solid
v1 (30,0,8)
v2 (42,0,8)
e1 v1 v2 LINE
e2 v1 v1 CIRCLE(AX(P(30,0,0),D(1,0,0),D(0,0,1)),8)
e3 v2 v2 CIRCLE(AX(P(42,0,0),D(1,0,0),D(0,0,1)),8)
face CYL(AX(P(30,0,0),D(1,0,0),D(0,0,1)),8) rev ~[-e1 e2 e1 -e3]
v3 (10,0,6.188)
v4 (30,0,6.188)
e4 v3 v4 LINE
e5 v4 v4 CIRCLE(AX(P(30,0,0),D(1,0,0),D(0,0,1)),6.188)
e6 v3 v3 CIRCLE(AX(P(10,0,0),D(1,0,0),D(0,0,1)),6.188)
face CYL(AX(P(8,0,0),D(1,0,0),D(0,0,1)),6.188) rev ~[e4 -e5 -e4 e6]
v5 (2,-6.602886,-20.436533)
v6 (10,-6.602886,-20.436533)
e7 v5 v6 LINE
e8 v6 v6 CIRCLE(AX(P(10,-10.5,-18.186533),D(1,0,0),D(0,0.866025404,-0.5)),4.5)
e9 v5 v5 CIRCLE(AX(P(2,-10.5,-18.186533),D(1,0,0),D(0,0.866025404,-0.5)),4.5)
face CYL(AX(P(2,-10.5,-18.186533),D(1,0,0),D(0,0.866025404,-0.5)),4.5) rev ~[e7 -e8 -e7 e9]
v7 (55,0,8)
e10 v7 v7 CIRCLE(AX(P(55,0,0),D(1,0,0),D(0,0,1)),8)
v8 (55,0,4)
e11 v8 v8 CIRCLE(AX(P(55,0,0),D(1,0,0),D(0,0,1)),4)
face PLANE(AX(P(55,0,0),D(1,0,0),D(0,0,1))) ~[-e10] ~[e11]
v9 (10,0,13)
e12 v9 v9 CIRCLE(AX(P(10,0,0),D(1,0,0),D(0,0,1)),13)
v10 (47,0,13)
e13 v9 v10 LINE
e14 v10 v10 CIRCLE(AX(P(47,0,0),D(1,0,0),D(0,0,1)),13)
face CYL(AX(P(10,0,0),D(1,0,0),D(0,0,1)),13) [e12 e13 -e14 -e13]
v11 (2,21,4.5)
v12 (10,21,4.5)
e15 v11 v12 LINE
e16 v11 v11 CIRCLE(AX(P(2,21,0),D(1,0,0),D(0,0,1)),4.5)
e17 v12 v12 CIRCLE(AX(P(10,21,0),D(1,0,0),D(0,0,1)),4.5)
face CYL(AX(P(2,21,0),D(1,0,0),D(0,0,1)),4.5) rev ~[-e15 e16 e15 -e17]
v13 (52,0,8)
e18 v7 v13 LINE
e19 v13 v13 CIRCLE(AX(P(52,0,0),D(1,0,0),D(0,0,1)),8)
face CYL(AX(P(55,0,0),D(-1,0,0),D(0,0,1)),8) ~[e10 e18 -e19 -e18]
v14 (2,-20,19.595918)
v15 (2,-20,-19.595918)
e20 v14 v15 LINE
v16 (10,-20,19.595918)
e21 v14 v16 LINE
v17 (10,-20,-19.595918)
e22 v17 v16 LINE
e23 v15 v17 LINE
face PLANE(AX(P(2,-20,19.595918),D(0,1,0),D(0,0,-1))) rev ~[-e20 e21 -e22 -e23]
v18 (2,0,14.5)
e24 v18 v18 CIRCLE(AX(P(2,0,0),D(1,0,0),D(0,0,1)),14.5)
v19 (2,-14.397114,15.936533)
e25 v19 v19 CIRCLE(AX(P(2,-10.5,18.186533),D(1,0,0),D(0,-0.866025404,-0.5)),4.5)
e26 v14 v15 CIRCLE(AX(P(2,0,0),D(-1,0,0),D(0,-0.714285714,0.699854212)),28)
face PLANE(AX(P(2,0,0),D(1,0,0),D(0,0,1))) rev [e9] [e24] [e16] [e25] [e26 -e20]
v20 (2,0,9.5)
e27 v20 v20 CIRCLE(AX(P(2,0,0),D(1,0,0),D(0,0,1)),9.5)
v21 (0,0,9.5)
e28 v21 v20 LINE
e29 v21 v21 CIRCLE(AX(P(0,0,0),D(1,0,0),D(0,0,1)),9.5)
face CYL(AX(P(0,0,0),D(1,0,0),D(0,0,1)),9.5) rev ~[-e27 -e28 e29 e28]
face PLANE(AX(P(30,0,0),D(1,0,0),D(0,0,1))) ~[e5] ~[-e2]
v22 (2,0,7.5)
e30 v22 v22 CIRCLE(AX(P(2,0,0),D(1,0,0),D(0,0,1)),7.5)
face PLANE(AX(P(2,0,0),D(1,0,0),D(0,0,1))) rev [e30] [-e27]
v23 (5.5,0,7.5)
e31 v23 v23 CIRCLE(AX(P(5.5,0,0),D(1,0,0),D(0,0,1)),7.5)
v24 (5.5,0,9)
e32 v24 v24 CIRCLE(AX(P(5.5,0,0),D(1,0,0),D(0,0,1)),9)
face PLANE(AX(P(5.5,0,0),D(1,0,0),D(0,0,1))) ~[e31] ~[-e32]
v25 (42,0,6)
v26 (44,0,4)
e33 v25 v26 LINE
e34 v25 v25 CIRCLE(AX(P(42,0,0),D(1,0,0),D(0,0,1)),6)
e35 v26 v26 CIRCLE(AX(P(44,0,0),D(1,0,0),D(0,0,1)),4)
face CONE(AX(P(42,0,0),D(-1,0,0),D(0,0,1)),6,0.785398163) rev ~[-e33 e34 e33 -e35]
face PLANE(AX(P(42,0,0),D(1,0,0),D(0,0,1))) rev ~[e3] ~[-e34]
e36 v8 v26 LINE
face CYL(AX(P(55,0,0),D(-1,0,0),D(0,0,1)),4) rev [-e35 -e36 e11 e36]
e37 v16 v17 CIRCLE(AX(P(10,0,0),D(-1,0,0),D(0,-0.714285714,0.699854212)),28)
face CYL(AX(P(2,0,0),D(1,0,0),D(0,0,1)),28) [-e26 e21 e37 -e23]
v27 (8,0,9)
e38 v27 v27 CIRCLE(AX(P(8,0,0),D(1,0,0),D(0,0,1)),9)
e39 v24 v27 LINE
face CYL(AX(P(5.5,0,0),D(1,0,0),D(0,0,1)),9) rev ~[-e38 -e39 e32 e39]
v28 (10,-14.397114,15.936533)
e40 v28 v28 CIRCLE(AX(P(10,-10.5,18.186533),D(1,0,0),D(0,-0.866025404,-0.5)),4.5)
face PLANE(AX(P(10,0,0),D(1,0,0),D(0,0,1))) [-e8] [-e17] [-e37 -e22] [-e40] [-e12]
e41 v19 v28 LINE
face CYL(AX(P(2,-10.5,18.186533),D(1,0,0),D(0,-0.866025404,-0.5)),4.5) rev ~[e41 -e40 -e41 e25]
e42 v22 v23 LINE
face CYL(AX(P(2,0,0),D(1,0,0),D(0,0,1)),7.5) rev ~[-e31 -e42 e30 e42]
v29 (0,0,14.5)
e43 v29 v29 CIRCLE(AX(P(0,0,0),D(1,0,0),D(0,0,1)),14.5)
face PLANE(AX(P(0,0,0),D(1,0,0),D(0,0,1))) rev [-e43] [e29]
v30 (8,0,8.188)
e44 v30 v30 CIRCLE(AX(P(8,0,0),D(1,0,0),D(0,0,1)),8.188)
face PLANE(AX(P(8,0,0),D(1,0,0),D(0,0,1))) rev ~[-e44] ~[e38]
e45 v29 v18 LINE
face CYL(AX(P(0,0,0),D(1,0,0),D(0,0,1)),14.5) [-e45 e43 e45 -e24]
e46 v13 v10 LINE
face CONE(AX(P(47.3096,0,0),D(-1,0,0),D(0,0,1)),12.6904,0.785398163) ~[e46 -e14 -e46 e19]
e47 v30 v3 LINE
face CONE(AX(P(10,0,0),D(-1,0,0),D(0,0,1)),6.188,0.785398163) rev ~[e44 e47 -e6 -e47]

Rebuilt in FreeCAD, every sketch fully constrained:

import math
import FreeCAD as App
import Part
import Sketcher
Q = App.Units.Quantity


def edges_at(feature, points):
    """Names of the edges that pass closest to the given points."""
    edges = feature.Shape.Edges
    near = lambda p: min(range(len(edges)), key=lambda i: edges[i].distToShape(Part.Vertex(*p))[0])
    return sorted({f"Edge{near(p) + 1}" for p in points})

doc = App.newDocument("Part")
params = doc.addObject("Spreadsheet::Sheet", "Params")
for row, (alias, value) in enumerate([
    ("sketch1_width", "2 mm"),
    ("sketch1_width2", "8 mm"),
    ("sketch1_width3", "3 mm"),
    ("sketch1_width4", "12 mm"),
    ("sketch1_height", "15 mm"),
    ("revolution_angle", "360 deg"),
    ("hole_diameter", "12.376 mm"),
    ("hole_depth", "30 mm"),
    ("chamfer_size", "2 mm"),
    ("sketch3_diameter", "9 mm"),
    ("hole2_diameter", "9 mm"),
    ("hole2_depth", "30 mm"),
    ("sketch4_radius", "28 mm"),
    ("pocket1_length", "10 mm"),
], start=1):
    params.set(f"A{row}", alias)
    params.set(f"B{row}", "=" + value)
    params.setAlias(f"B{row}", alias)

body = doc.addObject("PartDesign::Body", "Body")

# Sketch on XZ plane
sketch1 = body.newObject("Sketcher::SketchObject", "Sketch")
sketch1.AttachmentSupport = (doc.getObject("XZ_Plane"), [""])
sketch1.MapMode = "FlatFace"
sketch1.addGeometry(Part.LineSegment(App.Vector(2, 9.5, 0), App.Vector(0, 9.5, 0)), False)
sketch1.addGeometry(Part.LineSegment(App.Vector(0, 9.5, 0), App.Vector(0, 14.5, 0)), False)
sketch1.addGeometry(Part.LineSegment(App.Vector(0, 14.5, 0), App.Vector(2, 14.5, 0)), False)
sketch1.addGeometry(Part.LineSegment(App.Vector(2, 14.5, 0), App.Vector(2, 28, 0)), False)
sketch1.addGeometry(Part.LineSegment(App.Vector(2, 28, 0), App.Vector(10, 28, 0)), False)
sketch1.addGeometry(Part.LineSegment(App.Vector(10, 28, 0), App.Vector(10, 13, 0)), False)
sketch1.addGeometry(Part.LineSegment(App.Vector(10, 13, 0), App.Vector(47, 13, 0)), False)
sketch1.addGeometry(Part.LineSegment(App.Vector(47, 13, 0), App.Vector(52, 8, 0)), False)
sketch1.addGeometry(Part.LineSegment(App.Vector(52, 8, 0), App.Vector(55, 8, 0)), False)
sketch1.addGeometry(Part.LineSegment(App.Vector(55, 8, 0), App.Vector(55, 4, 0)), False)
sketch1.addGeometry(Part.LineSegment(App.Vector(55, 4, 0), App.Vector(44, 4, 0)), False)
sketch1.addGeometry(Part.LineSegment(App.Vector(44, 4, 0), App.Vector(42, 6, 0)), False)
sketch1.addGeometry(Part.LineSegment(App.Vector(42, 6, 0), App.Vector(42, 8, 0)), False)
sketch1.addGeometry(Part.LineSegment(App.Vector(42, 8, 0), App.Vector(30, 8, 0)), False)
sketch1.addGeometry(Part.LineSegment(App.Vector(30, 8, 0), App.Vector(30, 0, 0)), False)
sketch1.addGeometry(Part.LineSegment(App.Vector(30, 0, 0), App.Vector(8, 0, 0)), False)
sketch1.addGeometry(Part.LineSegment(App.Vector(8, 0, 0), App.Vector(8, 9, 0)), False)
sketch1.addGeometry(Part.LineSegment(App.Vector(8, 9, 0), App.Vector(5.5, 9, 0)), False)
sketch1.addGeometry(Part.LineSegment(App.Vector(5.5, 9, 0), App.Vector(5.5, 7.5, 0)), False)
sketch1.addGeometry(Part.LineSegment(App.Vector(5.5, 7.5, 0), App.Vector(2, 7.5, 0)), False)
sketch1.addGeometry(Part.LineSegment(App.Vector(2, 7.5, 0), App.Vector(2, 9.5, 0)), False)
sketch1.addConstraint(Sketcher.Constraint("Coincident", 0, 2, 1, 1))
sketch1.addConstraint(Sketcher.Constraint("Coincident", 1, 2, 2, 1))
sketch1.addConstraint(Sketcher.Constraint("Coincident", 2, 2, 3, 1))
sketch1.addConstraint(Sketcher.Constraint("Coincident", 3, 2, 4, 1))
sketch1.addConstraint(Sketcher.Constraint("Coincident", 4, 2, 5, 1))
sketch1.addConstraint(Sketcher.Constraint("Coincident", 5, 2, 6, 1))
sketch1.addConstraint(Sketcher.Constraint("Coincident", 6, 2, 7, 1))
sketch1.addConstraint(Sketcher.Constraint("Coincident", 7, 2, 8, 1))
sketch1.addConstraint(Sketcher.Constraint("Coincident", 8, 2, 9, 1))
sketch1.addConstraint(Sketcher.Constraint("Coincident", 9, 2, 10, 1))
sketch1.addConstraint(Sketcher.Constraint("Coincident", 10, 2, 11, 1))
sketch1.addConstraint(Sketcher.Constraint("Coincident", 11, 2, 12, 1))
sketch1.addConstraint(Sketcher.Constraint("Coincident", 12, 2, 13, 1))
sketch1.addConstraint(Sketcher.Constraint("Coincident", 13, 2, 14, 1))
sketch1.addConstraint(Sketcher.Constraint("Coincident", 14, 2, 15, 1))
sketch1.addConstraint(Sketcher.Constraint("Coincident", 15, 2, 16, 1))
sketch1.addConstraint(Sketcher.Constraint("Coincident", 16, 2, 17, 1))
sketch1.addConstraint(Sketcher.Constraint("Coincident", 17, 2, 18, 1))
sketch1.addConstraint(Sketcher.Constraint("Coincident", 18, 2, 19, 1))
sketch1.addConstraint(Sketcher.Constraint("Coincident", 19, 2, 20, 1))
sketch1.addConstraint(Sketcher.Constraint("Coincident", 20, 2, 0, 1))
sketch1.addConstraint(Sketcher.Constraint("Horizontal", 0))
sketch1.addConstraint(Sketcher.Constraint("Vertical", 1))
sketch1.addConstraint(Sketcher.Constraint("Horizontal", 2))
sketch1.addConstraint(Sketcher.Constraint("Vertical", 3))
sketch1.addConstraint(Sketcher.Constraint("Horizontal", 4))
sketch1.addConstraint(Sketcher.Constraint("Vertical", 5))
sketch1.addConstraint(Sketcher.Constraint("Horizontal", 6))
sketch1.addConstraint(Sketcher.Constraint("Horizontal", 8))
sketch1.addConstraint(Sketcher.Constraint("Vertical", 9))
sketch1.addConstraint(Sketcher.Constraint("Horizontal", 10))
sketch1.addConstraint(Sketcher.Constraint("Vertical", 12))
sketch1.addConstraint(Sketcher.Constraint("Horizontal", 13))
sketch1.addConstraint(Sketcher.Constraint("Vertical", 14))
sketch1.addConstraint(Sketcher.Constraint("Horizontal", 15))
sketch1.addConstraint(Sketcher.Constraint("Vertical", 16))
sketch1.addConstraint(Sketcher.Constraint("Horizontal", 17))
sketch1.addConstraint(Sketcher.Constraint("Vertical", 18))
sketch1.addConstraint(Sketcher.Constraint("Horizontal", 19))
sketch1.addConstraint(Sketcher.Constraint("Vertical", 20))
sketch1.addConstraint(Sketcher.Constraint("PointOnObject", 0, 2, -2))
sketch1.addConstraint(Sketcher.Constraint("PointOnObject", 14, 2, -1))
sketch1.addConstraint(Sketcher.Constraint("Parallel", 7, 11))
sketch1.addConstraint(Sketcher.Constraint("Horizontal", 8, 2, 12, 2))
sketch1.addConstraint(Sketcher.Constraint("Vertical", 3, 2, 19, 2))
sketch1.addConstraint(Sketcher.Constraint("Equal", 2, 12))
sketch1.addConstraint(Sketcher.Constraint("Equal", 4, 14))
sketch1.addConstraint(Sketcher.Constraint("Equal", 12, 20))
sketch1.addConstraint(Sketcher.Constraint("DistanceX", 0, 2, 0, 1, Q("2 mm")))
sketch1.addConstraint(Sketcher.Constraint("DistanceX", 4, 1, 4, 2, Q("8 mm")))
sketch1.addConstraint(Sketcher.Constraint("DistanceX", 8, 1, 8, 2, Q("3 mm")))
sketch1.addConstraint(Sketcher.Constraint("DistanceX", 13, 2, 13, 1, Q("12 mm")))
sketch1.addConstraint(Sketcher.Constraint("DistanceY", 5, 2, 5, 1, Q("15 mm")))
sketch1.addConstraint(Sketcher.Constraint("Angle", 7, Q("-45 deg")))
sketch1.addConstraint(Sketcher.Constraint("DistanceX", 17, 2, 17, 1, Q("2.5 mm")))
sketch1.addConstraint(Sketcher.Constraint("DistanceX", -1, 1, 8, 2, Q("55 mm")))
sketch1.addConstraint(Sketcher.Constraint("DistanceX", -1, 1, 11, 2, Q("42 mm")))
sketch1.addConstraint(Sketcher.Constraint("DistanceX", -1, 1, 15, 2, Q("8 mm")))
sketch1.addConstraint(Sketcher.Constraint("DistanceX", 2, 2, 6, 2, Q("45 mm")))
sketch1.addConstraint(Sketcher.Constraint("DistanceX", 10, 2, 7, 2, Q("8 mm")))
sketch1.addConstraint(Sketcher.Constraint("DistanceY", 1, 1, 1, 2, Q("5 mm")))
sketch1.addConstraint(Sketcher.Constraint("DistanceY", 16, 1, 16, 2, Q("9 mm")))
sketch1.addConstraint(Sketcher.Constraint("DistanceY", 3, 1, 3, 2, Q("13.5 mm")))
sketch1.setExpression("Constraints[48]", "Params.sketch1_width")
sketch1.setExpression("Constraints[49]", "Params.sketch1_width2")
sketch1.setExpression("Constraints[50]", "Params.sketch1_width3")
sketch1.setExpression("Constraints[51]", "Params.sketch1_width4")
sketch1.setExpression("Constraints[52]", "Params.sketch1_height")
revolution = body.newObject("PartDesign::Revolution", "Revolution")
revolution.Profile = sketch1
revolution.ReferenceAxis = (sketch1, ["H_Axis"])
revolution.setExpression("Angle", "Params.revolution_angle")

# Sketch on YZ plane
sketch2 = body.newObject("Sketcher::SketchObject", "Sketch001")
sketch2.AttachmentSupport = (doc.getObject("YZ_Plane"), [""])
sketch2.MapMode = "FlatFace"
sketch2.AttachmentOffset = App.Placement(App.Vector(0, 0, 8), App.Rotation())
sketch2.addGeometry(Part.Circle(App.Vector(0, 0, 0), App.Vector(0, 0, 1), 6), False)
sketch2.addConstraint(Sketcher.Constraint("Coincident", 0, 3, -1, 1))
sketch2.addConstraint(Sketcher.Constraint("Diameter", 0, Q("12.376 mm")))
doc.recompute()
hole = body.newObject("PartDesign::Hole", "Hole")
hole.Profile = sketch2
hole.ThreadType = "None"
hole.setExpression("Diameter", "Params.hole_diameter")
hole.DepthType = "Dimension"
hole.setExpression("Depth", "Params.hole_depth")
hole.DrillPoint = "Flat"
hole.Reversed = True
doc.recompute()

chamfer = body.newObject("PartDesign::Chamfer", "Chamfer")
chamfer.Base = (hole, edges_at(hole, [(8, 0, -6.188)]))
chamfer.setExpression("Size", "Params.chamfer_size")

# Sketch on YZ plane
sketch3 = body.newObject("Sketcher::SketchObject", "Sketch002")
sketch3.AttachmentSupport = (doc.getObject("YZ_Plane"), [""])
sketch3.MapMode = "FlatFace"
sketch3.AttachmentOffset = App.Placement(App.Vector(0, 0, 2), App.Rotation())
sketch3.addGeometry(Part.Circle(App.Vector(21, 0, 0), App.Vector(0, 0, 1), 4.5), False)
sketch3.addConstraint(Sketcher.Constraint("PointOnObject", 0, 3, -1))
sketch3.addConstraint(Sketcher.Constraint("Diameter", 0, Q("9 mm")))
sketch3.addConstraint(Sketcher.Constraint("DistanceX", -1, 1, 0, 3, Q("21 mm")))
sketch3.setExpression("Constraints[1]", "Params.sketch3_diameter")
doc.recompute()
hole2 = body.newObject("PartDesign::Hole", "Hole001")
hole2.Profile = sketch3
hole2.ThreadType = "None"
hole2.setExpression("Diameter", "Params.hole2_diameter")
hole2.DepthType = "Dimension"
hole2.setExpression("Depth", "Params.hole2_depth")
hole2.DrillPoint = "Flat"
hole2.Reversed = True
doc.recompute()

polarpattern = body.newObject("PartDesign::PolarPattern", "PolarPattern")
polarpattern.Originals = [hole2]
polarpattern.Axis = (doc.getObject("X_Axis"), [""])
polarpattern.Angle = 360
polarpattern.Occurrences = 3
body.Tip = polarpattern

# Sketch on YZ plane
sketch4 = body.newObject("Sketcher::SketchObject", "Sketch003")
sketch4.AttachmentSupport = (doc.getObject("YZ_Plane"), [""])
sketch4.MapMode = "FlatFace"
sketch4.AttachmentOffset = App.Placement(App.Vector(0, 0, 2), App.Rotation())
sketch4.addGeometry(Part.LineSegment(App.Vector(-20, 20, 0), App.Vector(-20, -20, 0)), False)
sketch4.addGeometry(Part.ArcOfCircle(Part.Circle(App.Vector(0, 0, 0), App.Vector(0, 0, 1), 28), math.radians(136), math.radians(224)), False)
sketch4.addConstraint(Sketcher.Constraint("Coincident", 0, 1, 1, 1))
sketch4.addConstraint(Sketcher.Constraint("Coincident", 1, 2, 0, 2))
sketch4.addConstraint(Sketcher.Constraint("Vertical", 0))
sketch4.addConstraint(Sketcher.Constraint("Coincident", 1, 3, -1, 1))
sketch4.addConstraint(Sketcher.Constraint("Radius", 1, Q("28 mm")))
sketch4.addConstraint(Sketcher.Constraint("DistanceX", 0, 1, -1, 1, Q("20 mm")))
sketch4.setExpression("Constraints[4]", "Params.sketch4_radius")
pocket1 = body.newObject("PartDesign::Pocket", "Pocket")
pocket1.Profile = sketch4
pocket1.setExpression("Length", "Params.pocket1_length")
pocket1.Reversed = True

doc.recompute()
